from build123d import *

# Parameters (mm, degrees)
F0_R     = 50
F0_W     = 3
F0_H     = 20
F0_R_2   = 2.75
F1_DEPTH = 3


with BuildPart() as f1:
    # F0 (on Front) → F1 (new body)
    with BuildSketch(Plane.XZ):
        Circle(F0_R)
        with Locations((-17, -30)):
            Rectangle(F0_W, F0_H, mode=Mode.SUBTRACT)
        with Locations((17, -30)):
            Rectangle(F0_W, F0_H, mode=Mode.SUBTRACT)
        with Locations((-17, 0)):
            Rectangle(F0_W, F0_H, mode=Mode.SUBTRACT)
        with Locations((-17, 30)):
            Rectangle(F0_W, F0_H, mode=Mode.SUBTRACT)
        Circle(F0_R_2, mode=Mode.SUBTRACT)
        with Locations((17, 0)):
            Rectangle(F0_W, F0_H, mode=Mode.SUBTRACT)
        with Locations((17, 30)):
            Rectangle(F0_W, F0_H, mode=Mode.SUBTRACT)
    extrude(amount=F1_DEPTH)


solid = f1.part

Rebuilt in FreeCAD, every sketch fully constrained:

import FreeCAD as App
import Part
import Sketcher

V = App.Vector
Q = App.Units.Quantity


def add_polygon(sketch, points):
    """Adds a closed chain of lines whose ends are joined by coincident constraints."""
    first, n = sketch.GeometryCount, len(points)
    for a, b in zip(points, points[1:] + points[:1]):
        sketch.addGeometry(Part.LineSegment(App.Vector(*a, 0), App.Vector(*b, 0)), False)
    for i in range(n):
        sketch.addConstraint(Sketcher.Constraint("Coincident", first + i, 2, first + (i + 1) % n, 1))

doc = App.newDocument("Part")
body = doc.addObject("PartDesign::Body", "Body")

sketch1 = doc.addObject("Sketcher::SketchObject", "Sketch")
body.addObject(sketch1)
sketch1.AttachmentSupport = (doc.XZ_Plane, [""])
sketch1.MapMode = "FlatFace"
sketch1.addGeometry(Part.Circle(V(0, 0, 0), V(0, 0, 1), 50), False)
add_polygon(sketch1, [(-15.5, -40), (-18.5, -40), (-18.5, -20), (-15.5, -20)])
add_polygon(sketch1, [(18.5, -40), (15.5, -40), (15.5, -20), (18.5, -20)])
add_polygon(sketch1, [(-15.5, -10), (-18.5, -10), (-18.5, 10), (-15.5, 10)])
add_polygon(sketch1, [(-15.5, 20), (-18.5, 20), (-18.5, 40), (-15.5, 40)])
sketch1.addGeometry(Part.Circle(V(0, 0, 0), V(0, 0, 1), 2.75), False)
add_polygon(sketch1, [(18.5, -10), (15.5, -10), (15.5, 10), (18.5, 10)])
add_polygon(sketch1, [(18.5, 20), (15.5, 20), (15.5, 40), (18.5, 40)])
sketch1.addConstraint([
    Sketcher.Constraint("Horizontal", 1),
    Sketcher.Constraint("Vertical", 2),
    Sketcher.Constraint("Horizontal", 3),
    Sketcher.Constraint("Vertical", 4),
    Sketcher.Constraint("Horizontal", 5),
    Sketcher.Constraint("Vertical", 6),
    Sketcher.Constraint("Horizontal", 7),
    Sketcher.Constraint("Vertical", 8),
    Sketcher.Constraint("Horizontal", 9),
    Sketcher.Constraint("Vertical", 10),
    Sketcher.Constraint("Horizontal", 11),
    Sketcher.Constraint("Vertical", 12),
    Sketcher.Constraint("Horizontal", 13),
    Sketcher.Constraint("Vertical", 14),
    Sketcher.Constraint("Horizontal", 15),
    Sketcher.Constraint("Vertical", 16),
    Sketcher.Constraint("Horizontal", 18),
    Sketcher.Constraint("Vertical", 19),
    Sketcher.Constraint("Horizontal", 20),
    Sketcher.Constraint("Vertical", 21),
    Sketcher.Constraint("Horizontal", 22),
    Sketcher.Constraint("Vertical", 23),
    Sketcher.Constraint("Horizontal", 24),
    Sketcher.Constraint("Vertical", 25),
    Sketcher.Constraint("Coincident", 0, 3, -1, 1),
    Sketcher.Constraint("Coincident", 17, 3, -1, 1),
    Sketcher.Constraint("Symmetric", 7, 2, 13, 2, -1, 1),
    Sketcher.Constraint("Symmetric", 5, 2, 15, 2, -1, 1),
    Sketcher.Constraint("Symmetric", 11, 2, 18, 2, -1, 1),
    Sketcher.Constraint("Symmetric", 9, 2, 20, 2, -1, 1),
    Sketcher.Constraint("Symmetric", 3, 2, 22, 2, -1, 1),
    Sketcher.Constraint("Symmetric", 1, 2, 24, 2, -1, 1),
    Sketcher.Constraint("Symmetric", 4, 2, 5, 2, -2),
    Sketcher.Constraint("Symmetric", 2, 2, 7, 2, -2),
    Sketcher.Constraint("Horizontal", 12, 2, 18, 2),
    Sketcher.Constraint("Vertical", 2, 2, 9, 2),
    Sketcher.Constraint("Vertical", 4, 2, 11, 2),
    Sketcher.Constraint("Equal", 8, 10),
    Sketcher.Constraint("Diameter", 0, Q("100 mm")),
    Sketcher.Constraint("Diameter", 17, Q("5.5 mm")),
    Sketcher.Constraint("DistanceX", 1, 2, 1, 1, Q("3 mm")),
    Sketcher.Constraint("DistanceY", 2, 1, 2, 2, Q("20 mm")),
    Sketcher.Constraint("DistanceY", 1, 2, -1, 1, Q("40 mm")),
    Sketcher.Constraint("DistanceX", 4, 2, 5, 2, Q("31 mm")),
])
pad1 = doc.addObject("PartDesign::Pad", "Pad")
body.addObject(pad1)
pad1.Profile = sketch1
pad1.Length = 3

doc.recompute()
